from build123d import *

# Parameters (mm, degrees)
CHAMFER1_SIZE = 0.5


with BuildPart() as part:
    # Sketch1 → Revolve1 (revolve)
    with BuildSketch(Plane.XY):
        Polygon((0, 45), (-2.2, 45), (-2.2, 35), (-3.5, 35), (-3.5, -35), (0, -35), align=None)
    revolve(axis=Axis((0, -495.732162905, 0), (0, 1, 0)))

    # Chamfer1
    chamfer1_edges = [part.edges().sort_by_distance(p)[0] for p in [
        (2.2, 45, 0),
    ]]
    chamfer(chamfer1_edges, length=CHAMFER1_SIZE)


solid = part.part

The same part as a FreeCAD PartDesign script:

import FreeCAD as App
import Part
import Sketcher
from FreeCAD import Vector
Q = App.Units.Quantity


def edges_at(feature, points):
    """Names of the edges that pass closest to the given points."""
    edges = feature.Shape.Edges
    near = lambda p: min(range(len(edges)), key=lambda i: edges[i].distToShape(Part.Vertex(*p))[0])
    return sorted({f"Edge{near(p) + 1}" for p in points})


def add_polygon(sketch, points):
    """Adds a closed chain of lines whose ends are joined by coincident constraints."""
    first, n = sketch.GeometryCount, len(points)
    for a, b in zip(points, points[1:] + points[:1]):
        sketch.addGeometry(Part.LineSegment(App.Vector(*a, 0), App.Vector(*b, 0)), False)
    for i in range(n):
        sketch.addConstraint(Sketcher.Constraint("Coincident", first + i, 2, first + (i + 1) % n, 1))

doc = App.newDocument("Part")
body = doc.addObject("PartDesign::Body", "Body")

sketch1 = body.newObject("Sketcher::SketchObject", "Sketch")
sketch1.AttachmentSupport = (doc.getObject("XY_Plane"), [""])
sketch1.MapMode = "FlatFace"
add_polygon(sketch1, [(0, 45), (-2.2, 45), (-2.2, 35), (-3.5, 35), (-3.5, -35), (0, -35)])
sketch1.addConstraint([
    Sketcher.Constraint("Horizontal", 0),
    Sketcher.Constraint("Vertical", 1),
    Sketcher.Constraint("Horizontal", 2),
    Sketcher.Constraint("Vertical", 3),
    Sketcher.Constraint("Horizontal", 4),
    Sketcher.Constraint("Vertical", 5),
    Sketcher.Constraint("PointOnObject", 4, 2, -2),
    Sketcher.Constraint("DistanceY", 1, 2, 1, 1, Q("10 mm")),
    Sketcher.Constraint("DistanceY", 3, 2, 3, 1, Q("70 mm")),
    Sketcher.Constraint("DistanceX", 0, 2, 0, 1, Q("2.2 mm")),
    Sketcher.Constraint("DistanceX", 2, 2, 2, 1, Q("1.3 mm")),
    Sketcher.Constraint("DistanceY", -1, 1, 0, 2, Q("45 mm")),
])
revolution = body.newObject("PartDesign::Revolution", "Revolution")
revolution.Profile = sketch1
revolution.ReferenceAxis = (sketch1, ["V_Axis"])
revolution.Angle = 360
doc.recompute()

chamfer = body.newObject("PartDesign::Chamfer", "Chamfer")
chamfer.Base = (revolution, edges_at(revolution, [(2.2, 45, 0)]))
chamfer.Size = 0.5

doc.recompute()
